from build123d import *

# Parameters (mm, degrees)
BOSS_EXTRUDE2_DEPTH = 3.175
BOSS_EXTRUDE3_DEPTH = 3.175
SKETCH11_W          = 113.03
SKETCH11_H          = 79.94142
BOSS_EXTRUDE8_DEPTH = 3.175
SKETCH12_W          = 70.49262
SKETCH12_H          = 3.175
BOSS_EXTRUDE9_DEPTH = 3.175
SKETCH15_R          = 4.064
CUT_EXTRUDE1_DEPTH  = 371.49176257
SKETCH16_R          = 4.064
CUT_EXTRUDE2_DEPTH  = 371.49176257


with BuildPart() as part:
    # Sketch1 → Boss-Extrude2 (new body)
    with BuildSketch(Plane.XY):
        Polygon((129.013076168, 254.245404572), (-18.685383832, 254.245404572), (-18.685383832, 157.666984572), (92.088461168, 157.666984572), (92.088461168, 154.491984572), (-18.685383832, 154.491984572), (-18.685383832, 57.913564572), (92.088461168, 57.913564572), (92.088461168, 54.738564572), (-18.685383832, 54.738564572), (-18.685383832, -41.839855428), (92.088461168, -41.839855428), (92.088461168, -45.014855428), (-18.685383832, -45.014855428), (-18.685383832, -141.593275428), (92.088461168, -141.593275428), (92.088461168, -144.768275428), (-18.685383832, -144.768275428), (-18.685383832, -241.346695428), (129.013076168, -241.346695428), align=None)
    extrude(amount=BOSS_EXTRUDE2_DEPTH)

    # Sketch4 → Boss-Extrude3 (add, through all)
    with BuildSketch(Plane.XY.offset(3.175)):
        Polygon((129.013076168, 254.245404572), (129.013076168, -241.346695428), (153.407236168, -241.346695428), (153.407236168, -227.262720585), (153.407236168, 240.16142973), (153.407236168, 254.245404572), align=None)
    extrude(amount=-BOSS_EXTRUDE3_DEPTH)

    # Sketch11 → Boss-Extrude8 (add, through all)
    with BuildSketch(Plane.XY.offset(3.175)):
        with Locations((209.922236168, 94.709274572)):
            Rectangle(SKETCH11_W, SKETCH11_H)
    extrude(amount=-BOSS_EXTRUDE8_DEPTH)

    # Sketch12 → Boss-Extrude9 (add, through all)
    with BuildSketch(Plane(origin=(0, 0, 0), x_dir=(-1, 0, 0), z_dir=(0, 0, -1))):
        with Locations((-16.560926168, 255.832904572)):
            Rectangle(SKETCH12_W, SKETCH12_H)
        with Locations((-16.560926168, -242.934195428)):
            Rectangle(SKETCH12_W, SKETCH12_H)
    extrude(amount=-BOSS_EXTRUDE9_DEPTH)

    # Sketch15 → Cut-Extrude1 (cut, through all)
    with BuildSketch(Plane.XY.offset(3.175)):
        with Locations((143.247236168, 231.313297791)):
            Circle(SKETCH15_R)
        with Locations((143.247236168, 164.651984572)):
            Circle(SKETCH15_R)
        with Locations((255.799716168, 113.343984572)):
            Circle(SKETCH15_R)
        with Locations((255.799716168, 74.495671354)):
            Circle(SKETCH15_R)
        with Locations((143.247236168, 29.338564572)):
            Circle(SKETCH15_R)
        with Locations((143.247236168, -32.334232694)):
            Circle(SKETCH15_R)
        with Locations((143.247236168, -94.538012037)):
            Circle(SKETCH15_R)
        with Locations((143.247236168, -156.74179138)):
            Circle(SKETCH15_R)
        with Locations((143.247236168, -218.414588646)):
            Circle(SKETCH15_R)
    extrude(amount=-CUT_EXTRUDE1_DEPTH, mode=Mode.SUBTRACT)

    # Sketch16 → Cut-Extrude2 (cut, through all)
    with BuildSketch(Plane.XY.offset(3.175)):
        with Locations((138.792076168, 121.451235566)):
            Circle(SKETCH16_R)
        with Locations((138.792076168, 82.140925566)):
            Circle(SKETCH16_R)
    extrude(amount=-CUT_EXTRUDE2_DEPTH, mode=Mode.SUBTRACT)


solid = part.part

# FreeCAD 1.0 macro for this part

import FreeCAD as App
import Part
import Sketcher
Q = App.Units.Quantity


def add_polygon(sketch, points):
    """Adds a closed chain of lines whose ends are joined by coincident constraints."""
    first, n = sketch.GeometryCount, len(points)
    for a, b in zip(points, points[1:] + points[:1]):
        sketch.addGeometry(Part.LineSegment(App.Vector(*a, 0), App.Vector(*b, 0)), False)
    for i in range(n):
        sketch.addConstraint(Sketcher.Constraint("Coincident", first + i, 2, first + (i + 1) % n, 1))

doc = App.newDocument("Part")
params = doc.addObject("Spreadsheet::Sheet", "Params")
for row, (alias, value) in enumerate([
    ("sketch1_height", "0.125 in"),
    ("pad1_length", "0.125 in"),
    ("pad2_length", "0.125 in"),
    ("sketch3_width", "4.45 in"),
    ("pad3_length", "0.125 in"),
    ("sketch4_height", "0.125 in"),
    ("sketch5_diameter", "0.32 in"),
    ("sketch6_diameter", "0.32 in"),
], start=1):
    params.set(f"A{row}", alias)
    params.set(f"B{row}", "=" + value)
    params.setAlias(f"B{row}", alias)

body = doc.addObject("PartDesign::Body", "Body")

# Sketch on XY plane
sketch1 = body.newObject("Sketcher::SketchObject", "Sketch")
sketch1.AttachmentSupport = (doc.getObject("XY_Plane"), [""])
sketch1.MapMode = "FlatFace"
add_polygon(sketch1, [(129, 254.2), (-18.7, 254.2), (-18.7, 157.7), (92.1, 157.7), (92.1, 154.5), (-18.7, 154.5), (-18.7, 57.9), (92.1, 57.9), (92.1, 54.7), (-18.7, 54.7), (-18.7, -41.8), (92.1, -41.8), (92.1, -45), (-18.7, -45), (-18.7, -141.6), (92.1, -141.6), (92.1, -144.8), (-18.7, -144.8), (-18.7, -241.3), (129, -241.3)])  # lines 0-19
sketch1.addConstraint([
    Sketcher.Constraint("Horizontal", 0),
    Sketcher.Constraint("Vertical", 1),
    Sketcher.Constraint("Horizontal", 2),
    Sketcher.Constraint("Vertical", 3),
    Sketcher.Constraint("Horizontal", 4),
    Sketcher.Constraint("Vertical", 5),
    Sketcher.Constraint("Horizontal", 6),
    Sketcher.Constraint("Vertical", 7),
    Sketcher.Constraint("Horizontal", 8),
    Sketcher.Constraint("Vertical", 9),
    Sketcher.Constraint("Horizontal", 10),
    Sketcher.Constraint("Vertical", 11),
    Sketcher.Constraint("Horizontal", 12),
    Sketcher.Constraint("Vertical", 13),
    Sketcher.Constraint("Horizontal", 14),
    Sketcher.Constraint("Vertical", 15),
    Sketcher.Constraint("Horizontal", 16),
    Sketcher.Constraint("Vertical", 17),
    Sketcher.Constraint("Horizontal", 18),
    Sketcher.Constraint("Vertical", 19),
    Sketcher.Constraint("Vertical", 1, 2, 4, 2),
    Sketcher.Constraint("Vertical", 3, 2, 6, 2),
    Sketcher.Constraint("Vertical", 5, 2, 8, 2),
    Sketcher.Constraint("Vertical", 7, 2, 10, 2),
    Sketcher.Constraint("Vertical", 9, 2, 12, 2),
    Sketcher.Constraint("Vertical", 11, 2, 14, 2),
    Sketcher.Constraint("Vertical", 13, 2, 16, 2),
    Sketcher.Constraint("Equal", 1, 5),
    Sketcher.Constraint("Equal", 3, 7),
    Sketcher.Constraint("Equal", 5, 9),
    Sketcher.Constraint("Equal", 7, 11),
    Sketcher.Constraint("Equal", 9, 13),
    Sketcher.Constraint("Equal", 11, 15),
    Sketcher.Constraint("Equal", 13, 17),
    Sketcher.Constraint("DistanceY", 3, 2, 3, 1, Q("0.125 in")),
    Sketcher.Constraint("DistanceX", 0, 2, 0, 1, Q("5.8149 in")),
    Sketcher.Constraint("DistanceY", 1, 2, 1, 1, Q("3.8023 in")),
    Sketcher.Constraint("DistanceX", 2, 1, 2, 2, Q("110.773845 mm")),
    Sketcher.Constraint("DistanceX", -1, 1, 2, 2, Q("92.088461 mm")),
    Sketcher.Constraint("DistanceY", -1, 1, 0, 2, Q("254.245405 mm")),
])
sketch1.setExpression("Constraints[54]", "Params.sketch1_height")
pad1 = body.newObject("PartDesign::Pad", "Pad")
pad1.Profile = sketch1
pad1.setExpression("Length", "Params.pad1_length")

# Sketch on XY plane
sketch2 = body.newObject("Sketcher::SketchObject", "Sketch001")
sketch2.AttachmentSupport = (doc.getObject("XY_Plane"), [""])
sketch2.MapMode = "FlatFace"
sketch2.AttachmentOffset = App.Placement(App.Vector(0, 0, 0.125 * 25.4), App.Rotation())
add_polygon(sketch2, [(129, 254), (129, -241), (153, -241), (153, 254)])  # lines 0-3
sketch2.addConstraint([
    Sketcher.Constraint("Vertical", 0),
    Sketcher.Constraint("Horizontal", 1),
    Sketcher.Constraint("Vertical", 2),
    Sketcher.Constraint("Horizontal", 3),
    Sketcher.Constraint("DistanceX", 1, 1, 1, 2, Q("0.9604 in")),
    Sketcher.Constraint("DistanceY", 0, 2, 0, 1, Q("19.5115 in")),
    Sketcher.Constraint("DistanceX", -1, 1, 0, 2, Q("129.013076 mm")),
    Sketcher.Constraint("DistanceY", 0, 2, -1, 1, Q("241.346695 mm")),
])
pad2 = body.newObject("PartDesign::Pad", "Pad001")
pad2.Profile = sketch2
pad2.setExpression("Length", "Params.pad2_length")
pad2.Reversed = True

# Sketch on XY plane
sketch3 = body.newObject("Sketcher::SketchObject", "Sketch002")
sketch3.AttachmentSupport = (doc.getObject("XY_Plane"), [""])
sketch3.MapMode = "FlatFace"
sketch3.AttachmentOffset = App.Placement(App.Vector(0, 0, 0.125 * 25.4), App.Rotation())
add_polygon(sketch3, [(153, 135), (153, 55), (266, 55), (266, 135)])  # lines 0-3
sketch3.addConstraint([
    Sketcher.Constraint("Vertical", 0),
    Sketcher.Constraint("Horizontal", 1),
    Sketcher.Constraint("Vertical", 2),
    Sketcher.Constraint("Horizontal", 3),
    Sketcher.Constraint("DistanceX", 1, 1, 1, 2, Q("4.45 in")),
    Sketcher.Constraint("DistanceY", 0, 2, 0, 1, Q("3.1473 in")),
    Sketcher.Constraint("DistanceX", -1, 1, 0, 2, Q("153.407236 mm")),
    Sketcher.Constraint("DistanceY", -1, 1, 0, 2, Q("54.738565 mm")),
])
sketch3.setExpression("Constraints[8]", "Params.sketch3_width")
pad3 = body.newObject("PartDesign::Pad", "Pad002")
pad3.Profile = sketch3
pad3.setExpression("Length", "Params.pad3_length")
pad3.Reversed = True

# Sketch on XY plane
sketch4 = body.newObject("Sketcher::SketchObject", "Sketch003")
sketch4.AttachmentSupport = (doc.getObject("XY_Plane"), [""])
sketch4.MapMode = "FlatFace"
add_polygon(sketch4, [(51.8, 257.4), (51.8, 254.2), (-18.7, 254.2), (-18.7, 257.4)])  # lines 0-3
add_polygon(sketch4, [(51.8, -241.3), (51.8, -244.5), (-18.7, -244.5), (-18.7, -241.3)])  # lines 4-7
sketch4.addConstraint([
    Sketcher.Constraint("Vertical", 0),
    Sketcher.Constraint("Horizontal", 1),
    Sketcher.Constraint("Vertical", 2),
    Sketcher.Constraint("Horizontal", 3),
    Sketcher.Constraint("Vertical", 4),
    Sketcher.Constraint("Horizontal", 5),
    Sketcher.Constraint("Vertical", 6),
    Sketcher.Constraint("Horizontal", 7),
    Sketcher.Constraint("Vertical", 3, 2, 4, 2),
    Sketcher.Constraint("Vertical", 2, 2, 5, 2),
    Sketcher.Constraint("Equal", 2, 4),
    Sketcher.Constraint("DistanceY", 0, 2, 0, 1, Q("0.125 in")),
    Sketcher.Constraint("DistanceX", 1, 2, 1, 1, Q("2.7753 in")),
    Sketcher.Constraint("DistanceY", 4, 2, 0, 2, Q("19.6365 in")),
    Sketcher.Constraint("DistanceX", -1, 1, 0, 2, Q("51.807236 mm")),
    Sketcher.Constraint("DistanceY", -1, 1, 0, 2, Q("254.245405 mm")),
])
sketch4.setExpression("Constraints[19]", "Params.sketch4_height")
pad4 = body.newObject("PartDesign::Pad", "Pad003")
pad4.Profile = sketch4
pad4.Type = "UpToLast"

# Sketch on XY plane
sketch5 = body.newObject("Sketcher::SketchObject", "Sketch004")
sketch5.AttachmentSupport = (doc.getObject("XY_Plane"), [""])
sketch5.MapMode = "FlatFace"
sketch5.AttachmentOffset = App.Placement(App.Vector(0, 0, 0.125 * 25.4), App.Rotation())
sketch5.addGeometry([
    Part.Circle(App.Vector(143.2, 231.3, 0), App.Vector(0, 0, 1), 4.1),  # 0
    Part.Circle(App.Vector(143.2, 164.7, 0), App.Vector(0, 0, 1), 4.1),  # 1
    Part.Circle(App.Vector(255.8, 113.3, 0), App.Vector(0, 0, 1), 4.1),  # 2
    Part.Circle(App.Vector(255.8, 74.5, 0), App.Vector(0, 0, 1), 4.1),  # 3
    Part.Circle(App.Vector(143.2, 29.3, 0), App.Vector(0, 0, 1), 4.1),  # 4
    Part.Circle(App.Vector(143.2, -32.3, 0), App.Vector(0, 0, 1), 4.1),  # 5
    Part.Circle(App.Vector(143.2, -94.5, 0), App.Vector(0, 0, 1), 4.1),  # 6
    Part.Circle(App.Vector(143.2, -156.7, 0), App.Vector(0, 0, 1), 4.1),  # 7
    Part.Circle(App.Vector(143.2, -218.4, 0), App.Vector(0, 0, 1), 4.1),  # 8
], False)
sketch5.addConstraint([
    Sketcher.Constraint("Equal", 0, 1),
    Sketcher.Constraint("Equal", 1, 2),
    Sketcher.Constraint("Equal", 2, 3),
    Sketcher.Constraint("Equal", 3, 4),
    Sketcher.Constraint("Equal", 4, 5),
    Sketcher.Constraint("Equal", 5, 6),
    Sketcher.Constraint("Equal", 6, 7),
    Sketcher.Constraint("Equal", 7, 8),
    Sketcher.Constraint("Vertical", 0, 3, 1, 3),
    Sketcher.Constraint("Vertical", 2, 3, 3, 3),
    Sketcher.Constraint("Vertical", 1, 3, 4, 3),
    Sketcher.Constraint("Vertical", 4, 3, 5, 3),
    Sketcher.Constraint("Vertical", 5, 3, 6, 3),
    Sketcher.Constraint("Vertical", 6, 3, 7, 3),
    Sketcher.Constraint("Vertical", 7, 3, 8, 3),
    Sketcher.Constraint("Diameter", 0, Q("0.32 in")),
    Sketcher.Constraint("DistanceY", 2, 3, 1, 3, Q("2.02 in")),
    Sketcher.Constraint("DistanceX", 1, 3, 2, 3, Q("4.4312 in")),
    Sketcher.Constraint("DistanceY", 4, 3, 1, 3, Q("5.3273 in")),
    Sketcher.Constraint("DistanceY", 8, 3, 3, 3, Q("11.5319 in")),
    Sketcher.Constraint("DistanceY", -1, 1, 3, 3, Q("74.495671 mm")),
    Sketcher.Constraint("DistanceY", 7, 3, -1, 1, Q("156.741791 mm")),
    Sketcher.Constraint("DistanceY", 5, 3, 0, 3, Q("263.64753 mm")),
    Sketcher.Constraint("DistanceY", 6, 3, 5, 3, Q("62.203779 mm")),
    Sketcher.Constraint("DistanceY", 7, 3, 6, 3, Q("62.203779 mm")),
    Sketcher.Constraint("DistanceX", -1, 1, 0, 3, Q("143.247236 mm")),
    Sketcher.Constraint("DistanceY", -1, 1, 1, 3, Q("164.651985 mm")),
])
sketch5.setExpression("Constraints[15]", "Params.sketch5_diameter")
pocket1 = body.newObject("PartDesign::Pocket", "Pocket")
pocket1.Profile = sketch5
pocket1.Type = "ThroughAll"

# Sketch on XY plane
sketch6 = body.newObject("Sketcher::SketchObject", "Sketch005")
sketch6.AttachmentSupport = (doc.getObject("XY_Plane"), [""])
sketch6.MapMode = "FlatFace"
sketch6.AttachmentOffset = App.Placement(App.Vector(0, 0, 0.125 * 25.4), App.Rotation())
sketch6.addGeometry([
    Part.Circle(App.Vector(138.8, 121.5, 0), App.Vector(0, 0, 1), 4.1),
    Part.Circle(App.Vector(138.8, 82.1, 0), App.Vector(0, 0, 1), 4.1),
], False)
sketch6.addConstraint([
    Sketcher.Constraint("Equal", 0, 1),
    Sketcher.Constraint("Vertical", 0, 3, 1, 3),
    Sketcher.Constraint("Diameter", 0, Q("0.32 in")),
    Sketcher.Constraint("DistanceY", 1, 3, 0, 3, Q("39.31031 mm")),
    Sketcher.Constraint("DistanceX", -1, 1, 0, 3, Q("138.792076 mm")),
    Sketcher.Constraint("DistanceY", -1, 1, 0, 3, Q("121.451236 mm")),
])
sketch6.setExpression("Constraints[2]", "Params.sketch6_diameter")
pocket2 = body.newObject("PartDesign::Pocket", "Pocket001")
pocket2.Profile = sketch6
pocket2.Type = "ThroughAll"

doc.recompute()
